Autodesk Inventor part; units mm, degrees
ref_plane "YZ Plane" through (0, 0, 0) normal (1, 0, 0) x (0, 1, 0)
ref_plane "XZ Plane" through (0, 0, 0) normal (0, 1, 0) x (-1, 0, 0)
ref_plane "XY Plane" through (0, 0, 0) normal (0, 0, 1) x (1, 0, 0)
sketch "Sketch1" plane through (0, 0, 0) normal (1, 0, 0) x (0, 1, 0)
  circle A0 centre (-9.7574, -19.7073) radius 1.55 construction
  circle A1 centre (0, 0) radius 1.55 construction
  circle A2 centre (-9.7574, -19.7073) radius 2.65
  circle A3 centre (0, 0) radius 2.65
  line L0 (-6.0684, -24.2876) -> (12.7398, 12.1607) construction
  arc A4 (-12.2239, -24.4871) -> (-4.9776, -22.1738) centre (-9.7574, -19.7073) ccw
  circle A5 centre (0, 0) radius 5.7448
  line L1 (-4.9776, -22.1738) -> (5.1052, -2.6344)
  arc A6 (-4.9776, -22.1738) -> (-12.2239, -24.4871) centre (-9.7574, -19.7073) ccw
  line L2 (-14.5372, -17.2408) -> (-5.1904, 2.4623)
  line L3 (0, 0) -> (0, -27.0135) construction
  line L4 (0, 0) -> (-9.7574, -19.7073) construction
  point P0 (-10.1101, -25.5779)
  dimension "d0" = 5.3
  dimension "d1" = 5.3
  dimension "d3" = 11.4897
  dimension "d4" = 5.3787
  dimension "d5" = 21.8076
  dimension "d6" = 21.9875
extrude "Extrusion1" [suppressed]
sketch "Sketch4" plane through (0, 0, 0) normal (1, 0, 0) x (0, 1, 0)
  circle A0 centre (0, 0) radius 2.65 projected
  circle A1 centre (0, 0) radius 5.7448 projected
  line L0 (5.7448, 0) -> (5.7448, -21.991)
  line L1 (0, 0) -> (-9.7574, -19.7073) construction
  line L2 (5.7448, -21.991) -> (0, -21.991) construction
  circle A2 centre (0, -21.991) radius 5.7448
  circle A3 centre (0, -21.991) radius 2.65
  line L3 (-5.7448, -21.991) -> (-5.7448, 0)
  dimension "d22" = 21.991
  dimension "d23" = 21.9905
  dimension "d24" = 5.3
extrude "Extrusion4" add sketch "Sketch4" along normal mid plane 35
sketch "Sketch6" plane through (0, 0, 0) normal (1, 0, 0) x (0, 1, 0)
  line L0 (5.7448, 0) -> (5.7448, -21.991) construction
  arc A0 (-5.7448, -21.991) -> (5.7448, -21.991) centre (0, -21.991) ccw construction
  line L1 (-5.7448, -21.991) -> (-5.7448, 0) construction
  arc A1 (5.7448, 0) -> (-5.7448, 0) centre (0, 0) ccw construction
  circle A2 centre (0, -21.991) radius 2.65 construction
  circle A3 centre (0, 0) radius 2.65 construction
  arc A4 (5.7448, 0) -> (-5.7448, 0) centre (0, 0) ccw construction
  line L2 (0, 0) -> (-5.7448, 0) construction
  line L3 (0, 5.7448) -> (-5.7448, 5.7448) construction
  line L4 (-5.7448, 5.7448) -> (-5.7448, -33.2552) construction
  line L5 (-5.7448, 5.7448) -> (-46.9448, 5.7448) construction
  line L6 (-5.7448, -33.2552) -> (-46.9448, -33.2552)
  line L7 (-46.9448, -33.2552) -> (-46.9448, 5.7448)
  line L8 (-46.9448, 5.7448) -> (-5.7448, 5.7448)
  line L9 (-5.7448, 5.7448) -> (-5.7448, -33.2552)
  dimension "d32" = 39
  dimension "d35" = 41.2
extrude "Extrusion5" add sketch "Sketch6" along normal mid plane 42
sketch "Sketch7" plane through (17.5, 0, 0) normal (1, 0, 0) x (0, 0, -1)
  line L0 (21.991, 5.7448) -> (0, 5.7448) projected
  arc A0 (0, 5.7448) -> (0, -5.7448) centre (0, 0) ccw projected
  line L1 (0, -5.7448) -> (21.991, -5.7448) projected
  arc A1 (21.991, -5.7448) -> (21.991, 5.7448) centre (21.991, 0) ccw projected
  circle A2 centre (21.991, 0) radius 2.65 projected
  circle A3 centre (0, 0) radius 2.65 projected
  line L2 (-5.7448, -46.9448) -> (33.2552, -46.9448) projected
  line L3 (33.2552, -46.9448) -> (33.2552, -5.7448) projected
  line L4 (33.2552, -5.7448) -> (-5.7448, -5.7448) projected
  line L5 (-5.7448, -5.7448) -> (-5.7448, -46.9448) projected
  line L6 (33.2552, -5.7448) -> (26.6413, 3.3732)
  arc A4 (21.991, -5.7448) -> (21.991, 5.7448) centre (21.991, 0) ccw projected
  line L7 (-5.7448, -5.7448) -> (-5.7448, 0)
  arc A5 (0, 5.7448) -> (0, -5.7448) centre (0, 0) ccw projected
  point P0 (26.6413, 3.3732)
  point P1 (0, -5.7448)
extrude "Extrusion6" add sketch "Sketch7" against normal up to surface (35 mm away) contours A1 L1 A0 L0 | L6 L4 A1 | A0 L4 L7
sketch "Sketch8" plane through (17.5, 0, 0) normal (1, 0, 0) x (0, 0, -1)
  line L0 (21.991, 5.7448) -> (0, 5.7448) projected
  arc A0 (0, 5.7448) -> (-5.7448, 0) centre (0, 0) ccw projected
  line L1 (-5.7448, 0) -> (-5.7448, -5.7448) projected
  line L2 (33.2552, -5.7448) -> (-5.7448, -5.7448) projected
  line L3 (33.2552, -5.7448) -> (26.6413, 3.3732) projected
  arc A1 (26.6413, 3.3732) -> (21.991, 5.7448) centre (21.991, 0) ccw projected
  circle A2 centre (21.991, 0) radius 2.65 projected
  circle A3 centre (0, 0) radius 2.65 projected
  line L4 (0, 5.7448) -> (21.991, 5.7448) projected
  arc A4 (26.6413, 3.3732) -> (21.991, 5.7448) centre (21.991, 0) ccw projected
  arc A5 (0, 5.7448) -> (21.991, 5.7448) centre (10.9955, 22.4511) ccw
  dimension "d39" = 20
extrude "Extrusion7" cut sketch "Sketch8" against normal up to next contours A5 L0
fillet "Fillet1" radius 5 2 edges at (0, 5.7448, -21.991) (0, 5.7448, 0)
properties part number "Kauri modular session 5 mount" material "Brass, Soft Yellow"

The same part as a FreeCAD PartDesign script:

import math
import FreeCAD as App
import Part
import Sketcher
from FreeCAD import Vector


def edges_at(feature, points):
    """Names of the edges that pass closest to the given points."""
    edges = feature.Shape.Edges
    near = lambda p: min(range(len(edges)), key=lambda i: edges[i].distToShape(Part.Vertex(*p))[0])
    return sorted({f"Edge{near(p) + 1}" for p in points})


def add_polygon(sketch, points):
    """Adds a closed chain of lines whose ends are joined by coincident constraints."""
    first, n = sketch.GeometryCount, len(points)
    for a, b in zip(points, points[1:] + points[:1]):
        sketch.addGeometry(Part.LineSegment(App.Vector(*a, 0), App.Vector(*b, 0)), False)
    for i in range(n):
        sketch.addConstraint(Sketcher.Constraint("Coincident", first + i, 2, first + (i + 1) % n, 1))

doc = App.newDocument("Part")
body = doc.addObject("PartDesign::Body", "Body")

# Sketch on YZ plane
sketch1 = body.newObject("Sketcher::SketchObject", "Sketch")
sketch1.AttachmentSupport = (doc.getObject("YZ_Plane"), [""])
sketch1.MapMode = "FlatFace"
sketch1.addGeometry([
    Part.ArcOfCircle(Part.Circle(Vector(0, 0, 0), Vector(0, 0, 1), 5.7448), math.radians(0), math.radians(180)),  # 0
    Part.LineSegment(Vector(-5.7448, 0, 0), Vector(-5.7448, -21.991, 0)),  # 1
    Part.ArcOfCircle(Part.Circle(Vector(0, -21.991, 0), Vector(0, 0, 1), 5.7448), math.radians(180), math.radians(360)),  # 2
    Part.LineSegment(Vector(5.7448, -21.991, 0), Vector(5.7448, 0, 0)),  # 3
    Part.Circle(Vector(0, 0, 0), Vector(0, 0, 1), 2.65),  # 4
    Part.Circle(Vector(0, -21.991, 0), Vector(0, 0, 1), 2.65),  # 5
], False)
sketch1.addConstraint([
    Sketcher.Constraint("Tangent", 0, 2, 1, 1),
    Sketcher.Constraint("Tangent", 1, 2, 2, 1),
    Sketcher.Constraint("Tangent", 2, 2, 3, 1),
    Sketcher.Constraint("Tangent", 3, 2, 0, 1),
    Sketcher.Constraint("Vertical", 1),
    Sketcher.Constraint("Vertical", 3),
    Sketcher.Constraint("Coincident", 0, 3, -1, 1),
    Sketcher.Constraint("Coincident", 4, 3, -1, 1),
    Sketcher.Constraint("Coincident", 5, 3, 2, 3),
    Sketcher.Constraint("Equal", 4, 5),
    Sketcher.Constraint("Diameter", 4, 5.3),
    Sketcher.Constraint("DistanceY", 1, 2, 1, 1, 21.991),
    Sketcher.Constraint("Radius", 0, 5.7448),
])
pad1 = body.newObject("PartDesign::Pad", "Pad")
pad1.Profile = sketch1
pad1.Length = 35
pad1.Midplane = True

# Sketch on YZ plane
sketch2 = body.newObject("Sketcher::SketchObject", "Sketch001")
sketch2.AttachmentSupport = (doc.getObject("YZ_Plane"), [""])
sketch2.MapMode = "FlatFace"
add_polygon(sketch2, [(-46.9448, -33.2552), (-5.7448, -33.2552), (-5.7448, 5.7448), (-46.9448, 5.7448)])  # lines 0-3
sketch2.addConstraint([
    Sketcher.Constraint("Horizontal", 0),
    Sketcher.Constraint("Vertical", 1),
    Sketcher.Constraint("Horizontal", 2),
    Sketcher.Constraint("Vertical", 3),
    Sketcher.Constraint("DistanceY", 1, 1, 1, 2, 39.0),
    Sketcher.Constraint("DistanceX", 0, 1, 0, 2, 41.2),
    Sketcher.Constraint("DistanceX", 0, 2, -1, 1, 5.7448),
    Sketcher.Constraint("DistanceY", 0, 2, -1, 1, 33.2552),
])
pad2 = body.newObject("PartDesign::Pad", "Pad001")
pad2.Profile = sketch2
pad2.Length = 42
pad2.Midplane = True

# Sketch on YZ plane
sketch3 = body.newObject("Sketcher::SketchObject", "Sketch002")
sketch3.AttachmentSupport = (doc.getObject("YZ_Plane"), [""])
sketch3.MapMode = "FlatFace"
sketch3.AttachmentOffset = App.Placement(Vector(0, 0, 17.5), App.Rotation())
sketch3.addGeometry([
    Part.ArcOfCircle(Part.Circle(Vector(0, -21.991, 0), Vector(0, 0, 1), 5.7448), math.radians(-54.043899), math.radians(0)),  # 0
    Part.LineSegment(Vector(5.7448, -21.991, 0), Vector(5.7448, 0, 0)),  # 1
    Part.ArcOfCircle(Part.Circle(Vector(0, 0, 0), Vector(0, 0, 1), 5.7448), math.radians(0), math.radians(90)),  # 2
    Part.LineSegment(Vector(0, 5.7448, 0), Vector(-5.7448, 5.7448, 0)),  # 3
    Part.LineSegment(Vector(-5.7448, 5.7448, 0), Vector(-5.7448, -33.2552, 0)),  # 4
    Part.LineSegment(Vector(-5.7448, -33.2552, 0), Vector(3.3732, -26.6413, 0)),  # 5
    Part.Circle(Vector(0, 0, 0), Vector(0, 0, 1), 2.65),  # 6
    Part.Circle(Vector(0, -21.991, 0), Vector(0, 0, 1), 2.65),  # 7
], False)
sketch3.addConstraint([
    Sketcher.Constraint("Tangent", 0, 2, 1, 1),
    Sketcher.Constraint("Tangent", 1, 2, 2, 1),
    Sketcher.Constraint("Tangent", 2, 2, 3, 1),
    Sketcher.Constraint("Coincident", 3, 2, 4, 1),
    Sketcher.Constraint("Coincident", 4, 2, 5, 1),
    Sketcher.Constraint("Tangent", 5, 2, 0, 1),
    Sketcher.Constraint("Vertical", 1),
    Sketcher.Constraint("Horizontal", 3),
    Sketcher.Constraint("Vertical", 4),
    Sketcher.Constraint("Coincident", 2, 3, -1, 1),
    Sketcher.Constraint("Coincident", 6, 3, -1, 1),
    Sketcher.Constraint("Coincident", 7, 3, 0, 3),
    Sketcher.Constraint("Equal", 0, 2),
    Sketcher.Constraint("Equal", 6, 7),
    Sketcher.Constraint("Diameter", 6, 5.3),
    Sketcher.Constraint("DistanceY", 4, 2, 4, 1, 39.0),
    Sketcher.Constraint("Radius", 0, 5.7448),
    Sketcher.Constraint("DistanceY", 1, 1, 1, 2, 21.991),
    Sketcher.Constraint("DistanceX", 3, 2, 3, 1, 5.7448),
])
pad3 = body.newObject("PartDesign::Pad", "Pad002")
pad3.Profile = sketch3
pad3.Length = 35
pad3.Reversed = True

# Sketch on YZ plane
sketch4 = body.newObject("Sketcher::SketchObject", "Sketch003")
sketch4.AttachmentSupport = (doc.getObject("YZ_Plane"), [""])
sketch4.MapMode = "FlatFace"
sketch4.AttachmentOffset = App.Placement(Vector(0, 0, 17.5), App.Rotation())
sketch4.addGeometry([
    Part.ArcOfCircle(Part.Circle(Vector(22.4511, -10.9955, 0), Vector(0, 0, 1), 20.000037), math.radians(146.648491), math.radians(213.351509)),
    Part.LineSegment(Vector(5.7448, -21.991, 0), Vector(5.7448, 0, 0)),
], False)
sketch4.addConstraint([
    Sketcher.Constraint("Coincident", 0, 1, 1, 2),
    Sketcher.Constraint("Coincident", 1, 1, 0, 2),
    Sketcher.Constraint("Vertical", 1),
    Sketcher.Constraint("PointOnObject", 0, 1, -1),
    Sketcher.Constraint("Radius", 0, 20.0),
    Sketcher.Constraint("DistanceY", 1, 1, 1, 2, 21.991),
    Sketcher.Constraint("DistanceX", -1, 1, 0, 3, 22.451),
])
pocket1 = body.newObject("PartDesign::Pocket", "Pocket")
pocket1.Profile = sketch4
pocket1.Type = "UpToFirst"
doc.recompute()

fillet = body.newObject("PartDesign::Fillet", "Fillet")
fillet.Base = (pocket1, edges_at(pocket1, [(0, 5.745, -21.991), (0, 5.745, 0)]))
fillet.Radius = 5

doc.recompute()
